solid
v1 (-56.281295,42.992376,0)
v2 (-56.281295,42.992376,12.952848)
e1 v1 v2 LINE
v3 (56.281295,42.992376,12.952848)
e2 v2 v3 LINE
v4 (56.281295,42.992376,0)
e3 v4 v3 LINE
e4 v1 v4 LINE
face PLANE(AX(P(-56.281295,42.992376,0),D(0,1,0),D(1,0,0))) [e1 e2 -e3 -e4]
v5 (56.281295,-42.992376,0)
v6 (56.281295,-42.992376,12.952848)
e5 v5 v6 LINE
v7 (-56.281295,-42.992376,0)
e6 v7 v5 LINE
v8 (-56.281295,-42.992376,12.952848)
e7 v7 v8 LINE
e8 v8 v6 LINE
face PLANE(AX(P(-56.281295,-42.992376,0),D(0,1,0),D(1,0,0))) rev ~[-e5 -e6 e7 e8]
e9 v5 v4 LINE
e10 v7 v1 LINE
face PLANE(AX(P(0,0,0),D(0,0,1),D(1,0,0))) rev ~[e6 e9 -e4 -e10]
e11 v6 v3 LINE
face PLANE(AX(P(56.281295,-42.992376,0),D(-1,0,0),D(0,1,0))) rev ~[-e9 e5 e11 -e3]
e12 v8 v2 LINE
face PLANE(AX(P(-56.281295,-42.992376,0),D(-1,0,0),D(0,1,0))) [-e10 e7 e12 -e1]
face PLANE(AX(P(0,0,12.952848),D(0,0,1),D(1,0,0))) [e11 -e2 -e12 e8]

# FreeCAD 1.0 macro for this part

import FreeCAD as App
import Part
import Sketcher
from FreeCAD import Vector

doc = App.newDocument("Part")
params = doc.addObject("Spreadsheet::Sheet", "Params")
for row, (alias, value) in enumerate([
    ("pad1_length", "25 mm"),
    ("sketch2_diameter", "10 mm"),
    ("pocket1_length", "10 mm"),
    ("pad2_length", "8.161053 mm"),
    ("pocket2_length", "12.047152 mm"),
], start=1):
    params.set(f"A{row}", alias)
    params.set(f"B{row}", "=" + value)
    params.setAlias(f"B{row}", alias)

body = doc.addObject("PartDesign::Body", "Body")

# Sketch on XY plane
sketch1 = doc.addObject("Sketcher::SketchObject", "Sketch")
body.addObject(sketch1)
sketch1.AttachmentSupport = (doc.XY_Plane, [""])
sketch1.MapMode = "FlatFace"
sketch1.addGeometry([
    Part.LineSegment(Vector(-56, 43, 0), Vector(-56, -43, 0)),
    Part.LineSegment(Vector(-56, -43, 0), Vector(56, -43, 0)),
    Part.LineSegment(Vector(56, -43, 0), Vector(56, 43, 0)),
    Part.LineSegment(Vector(56, 43, 0), Vector(-56, 43, 0)),
], False)
sketch1.addConstraint([
    Sketcher.Constraint("Coincident", 0, 2, 1, 1),
    Sketcher.Constraint("Coincident", 1, 2, 2, 1),
    Sketcher.Constraint("Coincident", 2, 2, 3, 1),
    Sketcher.Constraint("Coincident", 3, 2, 0, 1),
    Sketcher.Constraint("Vertical", 0),
    Sketcher.Constraint("Horizontal", 1),
    Sketcher.Constraint("Vertical", 2),
    Sketcher.Constraint("Horizontal", 3),
    Sketcher.Constraint("Symmetric", 0, 2, 2, 2, -1, 1),
    Sketcher.Constraint("DistanceX", 1, 1, 1, 2, 112.562589),
    Sketcher.Constraint("DistanceY", 0, 2, 0, 1, 85.984752),
])
pad1 = doc.addObject("PartDesign::Pad", "Pad")
body.addObject(pad1)
pad1.Profile = sketch1
pad1.setExpression("Length", "Params.pad1_length")

# Sketch on XY plane
sketch2 = doc.addObject("Sketcher::SketchObject", "Sketch001")
body.addObject(sketch2)
sketch2.AttachmentSupport = (doc.XY_Plane, [""])
sketch2.MapMode = "FlatFace"
sketch2.AttachmentOffset = App.Placement(Vector(0, 0, 25), App.Rotation())
sketch2.addGeometry(Part.Circle(Vector(38, -26, 0), Vector(0, 0, 1), 5), False)
sketch2.addConstraint([
    Sketcher.Constraint("Diameter", 0, 10.0),
    Sketcher.Constraint("DistanceY", 0, 3, -1, 1, 25.861099),
    Sketcher.Constraint("DistanceX", -1, 1, 0, 3, 37.748694),
])
sketch2.setExpression("Constraints[0]", "Params.sketch2_diameter")
pocket1 = doc.addObject("PartDesign::Pocket", "Pocket")
body.addObject(pocket1)
pocket1.Profile = sketch2
pocket1.setExpression("Length", "Params.pocket1_length")

# Sketch on XY plane
sketch3 = doc.addObject("Sketcher::SketchObject", "Sketch002")
body.addObject(sketch3)
sketch3.AttachmentSupport = (doc.XY_Plane, [""])
sketch3.MapMode = "FlatFace"
sketch3.AttachmentOffset = App.Placement(Vector(0, 0, 15), App.Rotation())
sketch3.addGeometry(Part.Circle(Vector(37.7, -25.9, 0), Vector(0, 0, 1), 4.1), False)
sketch3.addConstraint([
    Sketcher.Constraint("Diameter", 0, 8.168477),
    Sketcher.Constraint("DistanceY", 0, 3, -1, 1, 25.861099),
    Sketcher.Constraint("DistanceX", -1, 1, 0, 3, 37.748694),
])
pad2 = doc.addObject("PartDesign::Pad", "Pad001")
body.addObject(pad2)
pad2.Profile = sketch3
pad2.setExpression("Length", "Params.pad2_length")

# Sketch on XY plane
sketch4 = doc.addObject("Sketcher::SketchObject", "Sketch003")
body.addObject(sketch4)
sketch4.AttachmentSupport = (doc.XY_Plane, [""])
sketch4.MapMode = "FlatFace"
sketch4.AttachmentOffset = App.Placement(Vector(0, 0, 25), App.Rotation())
sketch4.addGeometry([
    Part.LineSegment(Vector(-56, 43, 0), Vector(-56, -43, 0)),
    Part.LineSegment(Vector(-56, -43, 0), Vector(56, -43, 0)),
    Part.LineSegment(Vector(56, -43, 0), Vector(56, 43, 0)),
    Part.LineSegment(Vector(56, 43, 0), Vector(-56, 43, 0)),
], False)
sketch4.addConstraint([
    Sketcher.Constraint("Coincident", 0, 2, 1, 1),
    Sketcher.Constraint("Coincident", 1, 2, 2, 1),
    Sketcher.Constraint("Coincident", 2, 2, 3, 1),
    Sketcher.Constraint("Coincident", 3, 2, 0, 1),
    Sketcher.Constraint("Vertical", 0),
    Sketcher.Constraint("Horizontal", 1),
    Sketcher.Constraint("Vertical", 2),
    Sketcher.Constraint("Horizontal", 3),
    Sketcher.Constraint("Symmetric", 0, 2, 2, 2, -1, 1),
    Sketcher.Constraint("DistanceX", 1, 1, 1, 2, 112.562589),
    Sketcher.Constraint("DistanceY", 0, 2, 0, 1, 85.984752),
])
pocket2 = doc.addObject("PartDesign::Pocket", "Pocket001")
body.addObject(pocket2)
pocket2.Profile = sketch4
pocket2.setExpression("Length", "Params.pocket2_length")

doc.recompute()
